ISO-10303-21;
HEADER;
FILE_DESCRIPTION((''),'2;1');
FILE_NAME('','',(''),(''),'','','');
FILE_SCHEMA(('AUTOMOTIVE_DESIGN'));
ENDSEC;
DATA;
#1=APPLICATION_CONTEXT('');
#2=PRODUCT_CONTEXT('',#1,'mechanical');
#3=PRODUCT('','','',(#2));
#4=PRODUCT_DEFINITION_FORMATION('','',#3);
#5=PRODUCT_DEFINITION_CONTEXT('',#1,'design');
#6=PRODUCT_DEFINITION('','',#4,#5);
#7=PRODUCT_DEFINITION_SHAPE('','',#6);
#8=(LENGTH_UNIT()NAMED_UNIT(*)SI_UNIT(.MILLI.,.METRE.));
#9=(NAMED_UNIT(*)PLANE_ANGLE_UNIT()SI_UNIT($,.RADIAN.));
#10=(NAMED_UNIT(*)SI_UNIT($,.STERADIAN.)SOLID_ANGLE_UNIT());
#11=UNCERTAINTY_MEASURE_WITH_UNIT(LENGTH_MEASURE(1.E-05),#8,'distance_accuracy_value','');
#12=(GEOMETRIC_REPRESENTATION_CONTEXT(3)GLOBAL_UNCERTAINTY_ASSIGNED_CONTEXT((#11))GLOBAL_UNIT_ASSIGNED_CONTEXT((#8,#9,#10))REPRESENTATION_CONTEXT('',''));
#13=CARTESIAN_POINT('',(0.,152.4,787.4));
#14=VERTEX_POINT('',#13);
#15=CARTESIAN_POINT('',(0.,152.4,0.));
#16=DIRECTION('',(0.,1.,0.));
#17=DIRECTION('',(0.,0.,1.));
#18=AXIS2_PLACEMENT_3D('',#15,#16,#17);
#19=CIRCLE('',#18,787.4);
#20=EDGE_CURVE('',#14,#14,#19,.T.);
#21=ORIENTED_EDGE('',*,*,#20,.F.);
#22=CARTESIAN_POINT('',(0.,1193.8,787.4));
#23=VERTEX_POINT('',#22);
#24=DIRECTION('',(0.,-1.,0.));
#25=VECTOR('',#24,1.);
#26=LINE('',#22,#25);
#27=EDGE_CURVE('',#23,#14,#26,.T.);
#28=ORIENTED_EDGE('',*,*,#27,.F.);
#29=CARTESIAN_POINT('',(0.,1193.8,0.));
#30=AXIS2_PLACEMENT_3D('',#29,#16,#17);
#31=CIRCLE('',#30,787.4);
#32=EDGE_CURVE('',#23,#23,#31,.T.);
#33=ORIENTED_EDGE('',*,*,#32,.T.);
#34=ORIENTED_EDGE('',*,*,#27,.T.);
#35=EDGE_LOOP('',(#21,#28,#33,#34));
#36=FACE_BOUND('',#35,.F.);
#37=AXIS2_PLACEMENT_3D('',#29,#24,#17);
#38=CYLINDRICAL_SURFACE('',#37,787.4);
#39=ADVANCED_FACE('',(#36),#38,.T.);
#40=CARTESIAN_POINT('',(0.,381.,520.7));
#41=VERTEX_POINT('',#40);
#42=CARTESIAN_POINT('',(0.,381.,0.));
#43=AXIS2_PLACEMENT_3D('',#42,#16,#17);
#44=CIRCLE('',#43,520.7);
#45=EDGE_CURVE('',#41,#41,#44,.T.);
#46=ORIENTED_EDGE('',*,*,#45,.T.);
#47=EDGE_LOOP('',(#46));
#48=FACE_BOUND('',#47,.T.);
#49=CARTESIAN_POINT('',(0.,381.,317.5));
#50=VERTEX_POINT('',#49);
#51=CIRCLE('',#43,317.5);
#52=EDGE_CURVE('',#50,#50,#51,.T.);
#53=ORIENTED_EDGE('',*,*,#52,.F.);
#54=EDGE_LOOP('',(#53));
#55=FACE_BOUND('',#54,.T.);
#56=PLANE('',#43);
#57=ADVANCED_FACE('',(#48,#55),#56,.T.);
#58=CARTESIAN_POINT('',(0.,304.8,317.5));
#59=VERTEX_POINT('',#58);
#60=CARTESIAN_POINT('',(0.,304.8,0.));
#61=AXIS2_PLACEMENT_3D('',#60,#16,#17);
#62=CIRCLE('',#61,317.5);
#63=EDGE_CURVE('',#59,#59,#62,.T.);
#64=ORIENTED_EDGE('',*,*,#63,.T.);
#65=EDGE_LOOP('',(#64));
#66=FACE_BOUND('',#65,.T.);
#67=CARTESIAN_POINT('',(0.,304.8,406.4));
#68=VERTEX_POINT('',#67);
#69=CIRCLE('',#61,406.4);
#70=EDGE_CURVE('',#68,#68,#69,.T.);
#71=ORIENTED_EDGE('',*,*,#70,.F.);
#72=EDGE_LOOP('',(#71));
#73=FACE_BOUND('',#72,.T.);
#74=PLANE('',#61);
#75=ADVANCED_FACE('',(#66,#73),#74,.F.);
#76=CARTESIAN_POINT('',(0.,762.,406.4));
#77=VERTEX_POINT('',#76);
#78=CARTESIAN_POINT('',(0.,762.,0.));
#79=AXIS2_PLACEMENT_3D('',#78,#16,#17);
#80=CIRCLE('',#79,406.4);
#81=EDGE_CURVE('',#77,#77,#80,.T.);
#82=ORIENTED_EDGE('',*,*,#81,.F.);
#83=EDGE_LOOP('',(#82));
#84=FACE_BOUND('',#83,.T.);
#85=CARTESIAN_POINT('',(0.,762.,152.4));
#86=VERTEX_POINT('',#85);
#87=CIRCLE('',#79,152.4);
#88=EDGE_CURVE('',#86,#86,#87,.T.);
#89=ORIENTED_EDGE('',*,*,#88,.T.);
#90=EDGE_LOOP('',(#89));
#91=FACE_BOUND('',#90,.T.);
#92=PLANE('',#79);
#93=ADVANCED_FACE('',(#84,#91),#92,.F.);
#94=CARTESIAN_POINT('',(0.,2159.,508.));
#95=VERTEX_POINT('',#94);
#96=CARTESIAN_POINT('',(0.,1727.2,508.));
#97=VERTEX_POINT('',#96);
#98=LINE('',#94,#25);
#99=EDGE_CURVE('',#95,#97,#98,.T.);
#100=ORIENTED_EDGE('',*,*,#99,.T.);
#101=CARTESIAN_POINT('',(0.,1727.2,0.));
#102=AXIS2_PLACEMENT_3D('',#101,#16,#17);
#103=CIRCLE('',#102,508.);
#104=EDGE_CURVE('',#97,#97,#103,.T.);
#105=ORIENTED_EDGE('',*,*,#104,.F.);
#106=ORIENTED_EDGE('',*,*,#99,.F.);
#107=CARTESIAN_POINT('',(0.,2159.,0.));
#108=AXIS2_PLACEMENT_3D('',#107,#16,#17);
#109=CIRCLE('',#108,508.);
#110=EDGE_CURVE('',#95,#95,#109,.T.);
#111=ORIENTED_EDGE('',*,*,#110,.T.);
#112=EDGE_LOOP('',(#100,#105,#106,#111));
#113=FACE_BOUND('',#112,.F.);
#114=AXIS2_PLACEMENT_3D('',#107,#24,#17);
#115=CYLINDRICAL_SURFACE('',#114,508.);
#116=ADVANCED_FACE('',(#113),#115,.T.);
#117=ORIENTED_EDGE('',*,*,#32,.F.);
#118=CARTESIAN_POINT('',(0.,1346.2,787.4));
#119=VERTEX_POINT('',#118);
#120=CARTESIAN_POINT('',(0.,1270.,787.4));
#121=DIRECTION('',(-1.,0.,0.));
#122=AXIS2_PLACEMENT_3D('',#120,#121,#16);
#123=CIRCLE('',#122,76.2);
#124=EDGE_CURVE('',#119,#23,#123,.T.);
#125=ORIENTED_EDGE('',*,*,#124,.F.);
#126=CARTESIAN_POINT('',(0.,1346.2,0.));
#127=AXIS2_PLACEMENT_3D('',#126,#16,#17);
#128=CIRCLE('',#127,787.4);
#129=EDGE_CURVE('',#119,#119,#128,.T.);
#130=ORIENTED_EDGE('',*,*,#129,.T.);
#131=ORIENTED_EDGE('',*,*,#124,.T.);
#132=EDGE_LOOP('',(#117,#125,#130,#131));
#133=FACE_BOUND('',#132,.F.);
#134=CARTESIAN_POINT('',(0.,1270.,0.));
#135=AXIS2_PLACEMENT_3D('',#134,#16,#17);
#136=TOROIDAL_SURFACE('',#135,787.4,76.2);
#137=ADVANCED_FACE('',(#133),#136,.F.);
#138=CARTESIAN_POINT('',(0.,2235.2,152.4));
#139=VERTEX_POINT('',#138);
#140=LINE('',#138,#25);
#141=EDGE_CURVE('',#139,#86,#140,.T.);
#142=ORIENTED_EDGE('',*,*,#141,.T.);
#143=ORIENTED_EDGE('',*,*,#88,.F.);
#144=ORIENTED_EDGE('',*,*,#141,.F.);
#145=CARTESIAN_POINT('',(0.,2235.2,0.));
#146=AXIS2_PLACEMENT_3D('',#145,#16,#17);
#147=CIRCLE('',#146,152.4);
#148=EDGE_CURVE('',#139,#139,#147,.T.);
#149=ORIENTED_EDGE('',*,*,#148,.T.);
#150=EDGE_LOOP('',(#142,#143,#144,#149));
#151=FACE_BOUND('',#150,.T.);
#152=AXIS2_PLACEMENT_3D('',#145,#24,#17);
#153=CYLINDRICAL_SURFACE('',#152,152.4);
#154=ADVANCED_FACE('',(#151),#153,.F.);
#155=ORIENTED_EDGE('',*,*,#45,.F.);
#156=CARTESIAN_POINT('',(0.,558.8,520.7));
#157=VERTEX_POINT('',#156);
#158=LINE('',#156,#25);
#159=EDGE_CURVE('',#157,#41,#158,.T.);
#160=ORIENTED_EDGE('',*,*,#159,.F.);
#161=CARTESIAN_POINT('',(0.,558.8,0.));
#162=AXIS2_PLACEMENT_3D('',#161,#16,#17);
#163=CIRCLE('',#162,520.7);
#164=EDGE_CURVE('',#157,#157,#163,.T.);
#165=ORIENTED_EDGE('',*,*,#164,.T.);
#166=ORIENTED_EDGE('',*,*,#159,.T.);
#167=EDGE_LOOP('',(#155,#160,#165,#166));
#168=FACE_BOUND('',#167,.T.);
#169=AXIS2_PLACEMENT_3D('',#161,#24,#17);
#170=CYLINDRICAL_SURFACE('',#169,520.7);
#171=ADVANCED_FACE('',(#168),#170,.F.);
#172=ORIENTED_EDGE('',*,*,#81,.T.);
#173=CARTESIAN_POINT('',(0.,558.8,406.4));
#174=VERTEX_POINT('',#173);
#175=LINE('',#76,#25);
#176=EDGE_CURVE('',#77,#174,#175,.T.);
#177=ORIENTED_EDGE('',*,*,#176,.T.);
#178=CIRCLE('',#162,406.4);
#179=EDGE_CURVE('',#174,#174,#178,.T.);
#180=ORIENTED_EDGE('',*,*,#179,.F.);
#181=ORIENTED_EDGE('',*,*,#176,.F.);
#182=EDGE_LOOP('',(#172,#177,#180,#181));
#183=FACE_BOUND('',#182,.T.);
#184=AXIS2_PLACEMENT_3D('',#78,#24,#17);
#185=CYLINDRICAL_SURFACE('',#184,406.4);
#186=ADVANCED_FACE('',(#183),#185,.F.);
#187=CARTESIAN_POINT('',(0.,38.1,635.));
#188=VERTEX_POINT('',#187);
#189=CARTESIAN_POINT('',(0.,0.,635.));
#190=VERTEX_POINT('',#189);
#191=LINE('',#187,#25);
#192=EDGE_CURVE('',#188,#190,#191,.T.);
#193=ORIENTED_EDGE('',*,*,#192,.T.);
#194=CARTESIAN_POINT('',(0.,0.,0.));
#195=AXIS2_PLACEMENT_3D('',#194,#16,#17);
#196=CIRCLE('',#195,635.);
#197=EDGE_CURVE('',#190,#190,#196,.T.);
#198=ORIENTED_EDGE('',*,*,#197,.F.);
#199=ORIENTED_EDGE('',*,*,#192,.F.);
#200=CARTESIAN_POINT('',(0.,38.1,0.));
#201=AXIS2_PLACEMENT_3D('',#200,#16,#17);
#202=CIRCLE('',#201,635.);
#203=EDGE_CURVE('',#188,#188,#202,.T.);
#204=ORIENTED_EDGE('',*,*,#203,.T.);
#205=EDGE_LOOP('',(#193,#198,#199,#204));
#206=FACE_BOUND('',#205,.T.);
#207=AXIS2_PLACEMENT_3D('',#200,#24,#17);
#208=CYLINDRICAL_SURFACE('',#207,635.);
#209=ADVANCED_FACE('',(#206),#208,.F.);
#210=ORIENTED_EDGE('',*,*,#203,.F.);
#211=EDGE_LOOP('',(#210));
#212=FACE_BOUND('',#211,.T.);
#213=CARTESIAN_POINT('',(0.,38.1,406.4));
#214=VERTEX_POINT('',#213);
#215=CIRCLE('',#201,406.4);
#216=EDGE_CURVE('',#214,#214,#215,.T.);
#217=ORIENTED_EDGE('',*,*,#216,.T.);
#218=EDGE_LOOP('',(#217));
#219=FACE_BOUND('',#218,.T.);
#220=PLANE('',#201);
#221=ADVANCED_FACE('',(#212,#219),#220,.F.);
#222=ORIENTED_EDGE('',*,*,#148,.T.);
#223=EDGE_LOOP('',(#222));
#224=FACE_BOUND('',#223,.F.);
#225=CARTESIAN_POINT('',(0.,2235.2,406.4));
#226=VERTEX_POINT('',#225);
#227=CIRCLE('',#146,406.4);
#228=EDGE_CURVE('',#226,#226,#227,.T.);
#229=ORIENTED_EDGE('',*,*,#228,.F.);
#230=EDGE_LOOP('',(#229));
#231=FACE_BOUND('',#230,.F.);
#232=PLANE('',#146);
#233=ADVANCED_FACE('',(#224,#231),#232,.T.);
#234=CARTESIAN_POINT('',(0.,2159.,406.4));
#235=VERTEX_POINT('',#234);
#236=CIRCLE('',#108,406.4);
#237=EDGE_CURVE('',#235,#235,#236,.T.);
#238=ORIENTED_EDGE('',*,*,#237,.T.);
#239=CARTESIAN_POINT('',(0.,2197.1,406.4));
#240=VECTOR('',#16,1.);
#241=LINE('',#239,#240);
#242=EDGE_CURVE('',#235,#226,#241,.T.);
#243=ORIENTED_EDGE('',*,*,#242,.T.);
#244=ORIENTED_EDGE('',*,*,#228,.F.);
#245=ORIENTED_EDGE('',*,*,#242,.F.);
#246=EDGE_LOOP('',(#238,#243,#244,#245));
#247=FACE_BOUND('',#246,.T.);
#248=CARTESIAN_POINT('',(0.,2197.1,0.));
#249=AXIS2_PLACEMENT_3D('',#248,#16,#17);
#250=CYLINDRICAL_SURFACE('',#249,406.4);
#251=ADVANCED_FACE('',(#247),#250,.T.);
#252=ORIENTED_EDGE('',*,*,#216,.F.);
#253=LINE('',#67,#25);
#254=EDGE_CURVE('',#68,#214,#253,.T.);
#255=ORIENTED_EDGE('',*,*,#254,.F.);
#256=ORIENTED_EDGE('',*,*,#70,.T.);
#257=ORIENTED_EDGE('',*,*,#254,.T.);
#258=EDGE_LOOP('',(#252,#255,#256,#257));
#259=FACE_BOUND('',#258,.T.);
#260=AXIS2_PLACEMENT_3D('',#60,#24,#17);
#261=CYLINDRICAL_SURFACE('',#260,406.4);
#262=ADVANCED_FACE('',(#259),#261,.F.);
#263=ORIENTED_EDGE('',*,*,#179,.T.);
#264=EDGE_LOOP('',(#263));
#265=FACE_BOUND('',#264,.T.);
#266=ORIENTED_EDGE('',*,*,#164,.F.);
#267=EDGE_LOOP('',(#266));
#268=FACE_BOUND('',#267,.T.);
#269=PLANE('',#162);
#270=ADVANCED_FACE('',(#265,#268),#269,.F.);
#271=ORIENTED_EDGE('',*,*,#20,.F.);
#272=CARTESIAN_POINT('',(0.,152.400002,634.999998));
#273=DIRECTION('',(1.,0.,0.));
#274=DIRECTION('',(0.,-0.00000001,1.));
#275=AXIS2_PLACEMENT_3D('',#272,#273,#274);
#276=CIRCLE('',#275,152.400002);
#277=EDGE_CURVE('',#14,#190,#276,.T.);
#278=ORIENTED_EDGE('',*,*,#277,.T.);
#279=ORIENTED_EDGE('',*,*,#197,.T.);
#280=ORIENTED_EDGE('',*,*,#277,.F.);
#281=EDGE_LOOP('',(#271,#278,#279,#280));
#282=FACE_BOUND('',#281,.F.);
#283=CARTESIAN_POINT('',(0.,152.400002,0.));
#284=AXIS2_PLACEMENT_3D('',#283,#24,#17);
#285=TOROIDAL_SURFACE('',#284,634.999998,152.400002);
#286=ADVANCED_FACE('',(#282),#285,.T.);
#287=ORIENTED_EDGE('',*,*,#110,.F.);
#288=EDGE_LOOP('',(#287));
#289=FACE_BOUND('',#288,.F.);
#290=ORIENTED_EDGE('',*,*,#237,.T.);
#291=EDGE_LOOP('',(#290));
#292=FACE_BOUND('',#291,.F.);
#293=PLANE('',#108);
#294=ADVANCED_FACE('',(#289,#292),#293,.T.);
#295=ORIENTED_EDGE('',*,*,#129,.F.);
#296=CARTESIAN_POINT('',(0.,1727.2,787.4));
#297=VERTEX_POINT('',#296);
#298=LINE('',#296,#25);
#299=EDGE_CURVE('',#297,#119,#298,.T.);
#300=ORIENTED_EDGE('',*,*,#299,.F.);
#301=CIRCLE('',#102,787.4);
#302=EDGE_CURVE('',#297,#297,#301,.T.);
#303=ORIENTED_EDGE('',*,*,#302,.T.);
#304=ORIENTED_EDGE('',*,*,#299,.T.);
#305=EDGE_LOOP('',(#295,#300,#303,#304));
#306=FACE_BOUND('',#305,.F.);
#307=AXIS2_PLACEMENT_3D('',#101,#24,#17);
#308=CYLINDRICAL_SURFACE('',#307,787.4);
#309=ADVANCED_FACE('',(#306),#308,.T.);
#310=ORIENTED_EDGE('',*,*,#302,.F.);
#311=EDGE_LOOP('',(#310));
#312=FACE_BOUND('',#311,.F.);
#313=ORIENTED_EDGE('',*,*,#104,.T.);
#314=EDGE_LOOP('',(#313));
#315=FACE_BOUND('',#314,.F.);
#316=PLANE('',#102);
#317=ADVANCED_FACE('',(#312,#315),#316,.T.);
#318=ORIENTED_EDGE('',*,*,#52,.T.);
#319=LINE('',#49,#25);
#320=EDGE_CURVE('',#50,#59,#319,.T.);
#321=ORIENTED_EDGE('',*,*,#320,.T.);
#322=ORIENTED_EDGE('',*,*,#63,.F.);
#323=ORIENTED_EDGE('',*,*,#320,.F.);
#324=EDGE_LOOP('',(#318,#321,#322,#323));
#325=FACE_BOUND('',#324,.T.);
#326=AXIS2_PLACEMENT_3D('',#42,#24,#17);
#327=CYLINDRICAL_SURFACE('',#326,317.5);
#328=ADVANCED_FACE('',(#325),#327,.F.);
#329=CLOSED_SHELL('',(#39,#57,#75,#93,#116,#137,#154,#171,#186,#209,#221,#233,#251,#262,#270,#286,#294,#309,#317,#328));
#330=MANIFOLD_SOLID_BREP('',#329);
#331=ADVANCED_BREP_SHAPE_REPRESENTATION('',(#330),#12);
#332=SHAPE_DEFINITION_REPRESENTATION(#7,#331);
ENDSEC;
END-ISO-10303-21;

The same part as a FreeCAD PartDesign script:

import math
import FreeCAD as App
import Part
import Sketcher
Q = App.Units.Quantity


def add_polygon(sketch, points):
    """Adds a closed chain of lines whose ends are joined by coincident constraints."""
    first, n = sketch.GeometryCount, len(points)
    for a, b in zip(points, points[1:] + points[:1]):
        sketch.addGeometry(Part.LineSegment(App.Vector(*a, 0), App.Vector(*b, 0)), False)
    for i in range(n):
        sketch.addConstraint(Sketcher.Constraint("Coincident", first + i, 2, first + (i + 1) % n, 1))

doc = App.newDocument("Part")
params = doc.addObject("Spreadsheet::Sheet", "Params")
for row, (alias, value) in enumerate([
    ("sketch1_radius", "3 in"),
    ("sketch1_radius2", "6.0000001 in"),
    ("sketch1_width", "3 in"),
    ("sketch1_width2", "17 in"),
    ("sketch1_width3", "15 in"),
    ("revolution_angle", "360 deg"),
    ("sketch2_width", "88 in"),
    ("sketch2_width2", "58 in"),
    ("sketch2_width3", "8 in"),
    ("sketch2_width4", "7 in"),
    ("sketch2_width5", "3 in"),
    ("groove_angle", "360 deg"),
], start=1):
    params.set(f"A{row}", alias)
    params.set(f"B{row}", "=" + value)
    params.setAlias(f"B{row}", alias)

body = doc.addObject("PartDesign::Body", "Body")

# Sketch on YZ plane
sketch1 = body.newObject("Sketcher::SketchObject", "Sketch")
sketch1.AttachmentSupport = (doc.getObject("YZ_Plane"), [""])
sketch1.MapMode = "FlatFace"
sketch1.addGeometry([
    Part.LineSegment(App.Vector(2235, 0, 0), App.Vector(2235, 406, 0)),  # 0
    Part.LineSegment(App.Vector(2235, 406, 0), App.Vector(2159, 406, 0)),  # 1
    Part.LineSegment(App.Vector(2159, 406, 0), App.Vector(2159, 508, 0)),  # 2
    Part.LineSegment(App.Vector(2159, 508, 0), App.Vector(1727, 508, 0)),  # 3
    Part.LineSegment(App.Vector(1727, 508, 0), App.Vector(1727, 787, 0)),  # 4
    Part.LineSegment(App.Vector(1727, 787, 0), App.Vector(1346, 787, 0)),  # 5
    Part.ArcOfCircle(Part.Circle(App.Vector(1270, 787, 0), App.Vector(0, 0, 1), 76), math.radians(180), math.radians(360)),  # 6
    Part.LineSegment(App.Vector(1194, 787, 0), App.Vector(152, 787, 0)),  # 7
    Part.ArcOfCircle(Part.Circle(App.Vector(152, 635, 0), App.Vector(0, 0, 1), 152), math.radians(90), math.radians(180)),  # 8
    Part.LineSegment(App.Vector(0, 635, 0), App.Vector(0, 0, 0)),  # 9
    Part.LineSegment(App.Vector(0, 0, 0), App.Vector(2235, 0, 0)),  # 10
], False)
sketch1.addConstraint([
    Sketcher.Constraint("Coincident", 0, 2, 1, 1),
    Sketcher.Constraint("Coincident", 1, 2, 2, 1),
    Sketcher.Constraint("Coincident", 2, 2, 3, 1),
    Sketcher.Constraint("Coincident", 3, 2, 4, 1),
    Sketcher.Constraint("Coincident", 4, 2, 5, 1),
    Sketcher.Constraint("Coincident", 5, 2, 6, 2),
    Sketcher.Constraint("Coincident", 6, 1, 7, 1),
    Sketcher.Constraint("Tangent", 7, 2, 8, 1),
    Sketcher.Constraint("Tangent", 8, 2, 9, 1),
    Sketcher.Constraint("Coincident", 9, 2, 10, 1),
    Sketcher.Constraint("Coincident", 10, 2, 0, 1),
    Sketcher.Constraint("Vertical", 0),
    Sketcher.Constraint("Horizontal", 1),
    Sketcher.Constraint("Vertical", 2),
    Sketcher.Constraint("Horizontal", 3),
    Sketcher.Constraint("Vertical", 4),
    Sketcher.Constraint("Horizontal", 5),
    Sketcher.Constraint("Horizontal", 7),
    Sketcher.Constraint("Vertical", 9),
    Sketcher.Constraint("Horizontal", 10),
    Sketcher.Constraint("Coincident", 9, 2, -1, 1),
    Sketcher.Constraint("Horizontal", 6, 3, 4, 2),
    Sketcher.Constraint("Horizontal", 5, 2, 6, 1),
    Sketcher.Constraint("Radius", 6, Q("3 in")),
    Sketcher.Constraint("Radius", 8, Q("6.0000001 in")),
    Sketcher.Constraint("DistanceX", 1, 2, 1, 1, Q("3 in")),
    Sketcher.Constraint("DistanceX", 3, 2, 3, 1, Q("17 in")),
    Sketcher.Constraint("DistanceX", 5, 2, 5, 1, Q("15 in")),
    Sketcher.Constraint("DistanceX", 7, 2, 7, 1, Q("41 in")),
    Sketcher.Constraint("DistanceY", 0, 1, 0, 2, Q("16 in")),
    Sketcher.Constraint("DistanceY", 2, 1, 2, 2, Q("4 in")),
    Sketcher.Constraint("DistanceY", 4, 1, 4, 2, Q("11 in")),
])
sketch1.setExpression("Constraints[23]", "Params.sketch1_radius")
sketch1.setExpression("Constraints[24]", "Params.sketch1_radius2")
sketch1.setExpression("Constraints[25]", "Params.sketch1_width")
sketch1.setExpression("Constraints[26]", "Params.sketch1_width2")
sketch1.setExpression("Constraints[27]", "Params.sketch1_width3")
revolution = body.newObject("PartDesign::Revolution", "Revolution")
revolution.Profile = sketch1
revolution.ReferenceAxis = (sketch1, ["H_Axis"])
revolution.setExpression("Angle", "Params.revolution_angle")

# Sketch on YZ plane
sketch2 = body.newObject("Sketcher::SketchObject", "Sketch001")
sketch2.AttachmentSupport = (doc.getObject("YZ_Plane"), [""])
sketch2.MapMode = "FlatFace"
add_polygon(sketch2, [(0, 635), (0, 0), (2235, 0), (2235, 152), (762, 152), (762, 406), (559, 406), (559, 521), (381, 521), (381, 318), (305, 318), (305, 406), (38, 406), (38, 635)])  # lines 0-13
sketch2.addConstraint([
    Sketcher.Constraint("Vertical", 0),
    Sketcher.Constraint("Horizontal", 1),
    Sketcher.Constraint("Vertical", 2),
    Sketcher.Constraint("Horizontal", 3),
    Sketcher.Constraint("Vertical", 4),
    Sketcher.Constraint("Horizontal", 5),
    Sketcher.Constraint("Vertical", 6),
    Sketcher.Constraint("Horizontal", 7),
    Sketcher.Constraint("Vertical", 8),
    Sketcher.Constraint("Horizontal", 9),
    Sketcher.Constraint("Vertical", 10),
    Sketcher.Constraint("Horizontal", 11),
    Sketcher.Constraint("Vertical", 12),
    Sketcher.Constraint("Horizontal", 13),
    Sketcher.Constraint("Coincident", 0, 2, -1, 1),
    Sketcher.Constraint("Horizontal", 5, 2, 10, 2),
    Sketcher.Constraint("Equal", 5, 8),
    Sketcher.Constraint("DistanceX", 1, 1, 1, 2, Q("88 in")),
    Sketcher.Constraint("DistanceX", 3, 2, 3, 1, Q("58 in")),
    Sketcher.Constraint("DistanceX", 5, 2, 5, 1, Q("8 in")),
    Sketcher.Constraint("DistanceX", 7, 2, 7, 1, Q("7 in")),
    Sketcher.Constraint("DistanceX", 9, 2, 9, 1, Q("3 in")),
    Sketcher.Constraint("DistanceY", 0, 2, 0, 1, Q("25 in")),
    Sketcher.Constraint("DistanceY", 2, 1, 2, 2, Q("6 in")),
    Sketcher.Constraint("DistanceY", 4, 1, 4, 2, Q("10 in")),
    Sketcher.Constraint("DistanceX", 11, 2, 11, 1, Q("10.5 in")),
    Sketcher.Constraint("DistanceY", 6, 1, 6, 2, Q("4.5 in")),
])
sketch2.setExpression("Constraints[31]", "Params.sketch2_width")
sketch2.setExpression("Constraints[32]", "Params.sketch2_width2")
sketch2.setExpression("Constraints[33]", "Params.sketch2_width3")
sketch2.setExpression("Constraints[34]", "Params.sketch2_width4")
sketch2.setExpression("Constraints[35]", "Params.sketch2_width5")
groove = body.newObject("PartDesign::Groove", "Groove")
groove.Profile = sketch2
groove.ReferenceAxis = (sketch2, ["H_Axis"])
groove.setExpression("Angle", "Params.groove_angle")

doc.recompute()
